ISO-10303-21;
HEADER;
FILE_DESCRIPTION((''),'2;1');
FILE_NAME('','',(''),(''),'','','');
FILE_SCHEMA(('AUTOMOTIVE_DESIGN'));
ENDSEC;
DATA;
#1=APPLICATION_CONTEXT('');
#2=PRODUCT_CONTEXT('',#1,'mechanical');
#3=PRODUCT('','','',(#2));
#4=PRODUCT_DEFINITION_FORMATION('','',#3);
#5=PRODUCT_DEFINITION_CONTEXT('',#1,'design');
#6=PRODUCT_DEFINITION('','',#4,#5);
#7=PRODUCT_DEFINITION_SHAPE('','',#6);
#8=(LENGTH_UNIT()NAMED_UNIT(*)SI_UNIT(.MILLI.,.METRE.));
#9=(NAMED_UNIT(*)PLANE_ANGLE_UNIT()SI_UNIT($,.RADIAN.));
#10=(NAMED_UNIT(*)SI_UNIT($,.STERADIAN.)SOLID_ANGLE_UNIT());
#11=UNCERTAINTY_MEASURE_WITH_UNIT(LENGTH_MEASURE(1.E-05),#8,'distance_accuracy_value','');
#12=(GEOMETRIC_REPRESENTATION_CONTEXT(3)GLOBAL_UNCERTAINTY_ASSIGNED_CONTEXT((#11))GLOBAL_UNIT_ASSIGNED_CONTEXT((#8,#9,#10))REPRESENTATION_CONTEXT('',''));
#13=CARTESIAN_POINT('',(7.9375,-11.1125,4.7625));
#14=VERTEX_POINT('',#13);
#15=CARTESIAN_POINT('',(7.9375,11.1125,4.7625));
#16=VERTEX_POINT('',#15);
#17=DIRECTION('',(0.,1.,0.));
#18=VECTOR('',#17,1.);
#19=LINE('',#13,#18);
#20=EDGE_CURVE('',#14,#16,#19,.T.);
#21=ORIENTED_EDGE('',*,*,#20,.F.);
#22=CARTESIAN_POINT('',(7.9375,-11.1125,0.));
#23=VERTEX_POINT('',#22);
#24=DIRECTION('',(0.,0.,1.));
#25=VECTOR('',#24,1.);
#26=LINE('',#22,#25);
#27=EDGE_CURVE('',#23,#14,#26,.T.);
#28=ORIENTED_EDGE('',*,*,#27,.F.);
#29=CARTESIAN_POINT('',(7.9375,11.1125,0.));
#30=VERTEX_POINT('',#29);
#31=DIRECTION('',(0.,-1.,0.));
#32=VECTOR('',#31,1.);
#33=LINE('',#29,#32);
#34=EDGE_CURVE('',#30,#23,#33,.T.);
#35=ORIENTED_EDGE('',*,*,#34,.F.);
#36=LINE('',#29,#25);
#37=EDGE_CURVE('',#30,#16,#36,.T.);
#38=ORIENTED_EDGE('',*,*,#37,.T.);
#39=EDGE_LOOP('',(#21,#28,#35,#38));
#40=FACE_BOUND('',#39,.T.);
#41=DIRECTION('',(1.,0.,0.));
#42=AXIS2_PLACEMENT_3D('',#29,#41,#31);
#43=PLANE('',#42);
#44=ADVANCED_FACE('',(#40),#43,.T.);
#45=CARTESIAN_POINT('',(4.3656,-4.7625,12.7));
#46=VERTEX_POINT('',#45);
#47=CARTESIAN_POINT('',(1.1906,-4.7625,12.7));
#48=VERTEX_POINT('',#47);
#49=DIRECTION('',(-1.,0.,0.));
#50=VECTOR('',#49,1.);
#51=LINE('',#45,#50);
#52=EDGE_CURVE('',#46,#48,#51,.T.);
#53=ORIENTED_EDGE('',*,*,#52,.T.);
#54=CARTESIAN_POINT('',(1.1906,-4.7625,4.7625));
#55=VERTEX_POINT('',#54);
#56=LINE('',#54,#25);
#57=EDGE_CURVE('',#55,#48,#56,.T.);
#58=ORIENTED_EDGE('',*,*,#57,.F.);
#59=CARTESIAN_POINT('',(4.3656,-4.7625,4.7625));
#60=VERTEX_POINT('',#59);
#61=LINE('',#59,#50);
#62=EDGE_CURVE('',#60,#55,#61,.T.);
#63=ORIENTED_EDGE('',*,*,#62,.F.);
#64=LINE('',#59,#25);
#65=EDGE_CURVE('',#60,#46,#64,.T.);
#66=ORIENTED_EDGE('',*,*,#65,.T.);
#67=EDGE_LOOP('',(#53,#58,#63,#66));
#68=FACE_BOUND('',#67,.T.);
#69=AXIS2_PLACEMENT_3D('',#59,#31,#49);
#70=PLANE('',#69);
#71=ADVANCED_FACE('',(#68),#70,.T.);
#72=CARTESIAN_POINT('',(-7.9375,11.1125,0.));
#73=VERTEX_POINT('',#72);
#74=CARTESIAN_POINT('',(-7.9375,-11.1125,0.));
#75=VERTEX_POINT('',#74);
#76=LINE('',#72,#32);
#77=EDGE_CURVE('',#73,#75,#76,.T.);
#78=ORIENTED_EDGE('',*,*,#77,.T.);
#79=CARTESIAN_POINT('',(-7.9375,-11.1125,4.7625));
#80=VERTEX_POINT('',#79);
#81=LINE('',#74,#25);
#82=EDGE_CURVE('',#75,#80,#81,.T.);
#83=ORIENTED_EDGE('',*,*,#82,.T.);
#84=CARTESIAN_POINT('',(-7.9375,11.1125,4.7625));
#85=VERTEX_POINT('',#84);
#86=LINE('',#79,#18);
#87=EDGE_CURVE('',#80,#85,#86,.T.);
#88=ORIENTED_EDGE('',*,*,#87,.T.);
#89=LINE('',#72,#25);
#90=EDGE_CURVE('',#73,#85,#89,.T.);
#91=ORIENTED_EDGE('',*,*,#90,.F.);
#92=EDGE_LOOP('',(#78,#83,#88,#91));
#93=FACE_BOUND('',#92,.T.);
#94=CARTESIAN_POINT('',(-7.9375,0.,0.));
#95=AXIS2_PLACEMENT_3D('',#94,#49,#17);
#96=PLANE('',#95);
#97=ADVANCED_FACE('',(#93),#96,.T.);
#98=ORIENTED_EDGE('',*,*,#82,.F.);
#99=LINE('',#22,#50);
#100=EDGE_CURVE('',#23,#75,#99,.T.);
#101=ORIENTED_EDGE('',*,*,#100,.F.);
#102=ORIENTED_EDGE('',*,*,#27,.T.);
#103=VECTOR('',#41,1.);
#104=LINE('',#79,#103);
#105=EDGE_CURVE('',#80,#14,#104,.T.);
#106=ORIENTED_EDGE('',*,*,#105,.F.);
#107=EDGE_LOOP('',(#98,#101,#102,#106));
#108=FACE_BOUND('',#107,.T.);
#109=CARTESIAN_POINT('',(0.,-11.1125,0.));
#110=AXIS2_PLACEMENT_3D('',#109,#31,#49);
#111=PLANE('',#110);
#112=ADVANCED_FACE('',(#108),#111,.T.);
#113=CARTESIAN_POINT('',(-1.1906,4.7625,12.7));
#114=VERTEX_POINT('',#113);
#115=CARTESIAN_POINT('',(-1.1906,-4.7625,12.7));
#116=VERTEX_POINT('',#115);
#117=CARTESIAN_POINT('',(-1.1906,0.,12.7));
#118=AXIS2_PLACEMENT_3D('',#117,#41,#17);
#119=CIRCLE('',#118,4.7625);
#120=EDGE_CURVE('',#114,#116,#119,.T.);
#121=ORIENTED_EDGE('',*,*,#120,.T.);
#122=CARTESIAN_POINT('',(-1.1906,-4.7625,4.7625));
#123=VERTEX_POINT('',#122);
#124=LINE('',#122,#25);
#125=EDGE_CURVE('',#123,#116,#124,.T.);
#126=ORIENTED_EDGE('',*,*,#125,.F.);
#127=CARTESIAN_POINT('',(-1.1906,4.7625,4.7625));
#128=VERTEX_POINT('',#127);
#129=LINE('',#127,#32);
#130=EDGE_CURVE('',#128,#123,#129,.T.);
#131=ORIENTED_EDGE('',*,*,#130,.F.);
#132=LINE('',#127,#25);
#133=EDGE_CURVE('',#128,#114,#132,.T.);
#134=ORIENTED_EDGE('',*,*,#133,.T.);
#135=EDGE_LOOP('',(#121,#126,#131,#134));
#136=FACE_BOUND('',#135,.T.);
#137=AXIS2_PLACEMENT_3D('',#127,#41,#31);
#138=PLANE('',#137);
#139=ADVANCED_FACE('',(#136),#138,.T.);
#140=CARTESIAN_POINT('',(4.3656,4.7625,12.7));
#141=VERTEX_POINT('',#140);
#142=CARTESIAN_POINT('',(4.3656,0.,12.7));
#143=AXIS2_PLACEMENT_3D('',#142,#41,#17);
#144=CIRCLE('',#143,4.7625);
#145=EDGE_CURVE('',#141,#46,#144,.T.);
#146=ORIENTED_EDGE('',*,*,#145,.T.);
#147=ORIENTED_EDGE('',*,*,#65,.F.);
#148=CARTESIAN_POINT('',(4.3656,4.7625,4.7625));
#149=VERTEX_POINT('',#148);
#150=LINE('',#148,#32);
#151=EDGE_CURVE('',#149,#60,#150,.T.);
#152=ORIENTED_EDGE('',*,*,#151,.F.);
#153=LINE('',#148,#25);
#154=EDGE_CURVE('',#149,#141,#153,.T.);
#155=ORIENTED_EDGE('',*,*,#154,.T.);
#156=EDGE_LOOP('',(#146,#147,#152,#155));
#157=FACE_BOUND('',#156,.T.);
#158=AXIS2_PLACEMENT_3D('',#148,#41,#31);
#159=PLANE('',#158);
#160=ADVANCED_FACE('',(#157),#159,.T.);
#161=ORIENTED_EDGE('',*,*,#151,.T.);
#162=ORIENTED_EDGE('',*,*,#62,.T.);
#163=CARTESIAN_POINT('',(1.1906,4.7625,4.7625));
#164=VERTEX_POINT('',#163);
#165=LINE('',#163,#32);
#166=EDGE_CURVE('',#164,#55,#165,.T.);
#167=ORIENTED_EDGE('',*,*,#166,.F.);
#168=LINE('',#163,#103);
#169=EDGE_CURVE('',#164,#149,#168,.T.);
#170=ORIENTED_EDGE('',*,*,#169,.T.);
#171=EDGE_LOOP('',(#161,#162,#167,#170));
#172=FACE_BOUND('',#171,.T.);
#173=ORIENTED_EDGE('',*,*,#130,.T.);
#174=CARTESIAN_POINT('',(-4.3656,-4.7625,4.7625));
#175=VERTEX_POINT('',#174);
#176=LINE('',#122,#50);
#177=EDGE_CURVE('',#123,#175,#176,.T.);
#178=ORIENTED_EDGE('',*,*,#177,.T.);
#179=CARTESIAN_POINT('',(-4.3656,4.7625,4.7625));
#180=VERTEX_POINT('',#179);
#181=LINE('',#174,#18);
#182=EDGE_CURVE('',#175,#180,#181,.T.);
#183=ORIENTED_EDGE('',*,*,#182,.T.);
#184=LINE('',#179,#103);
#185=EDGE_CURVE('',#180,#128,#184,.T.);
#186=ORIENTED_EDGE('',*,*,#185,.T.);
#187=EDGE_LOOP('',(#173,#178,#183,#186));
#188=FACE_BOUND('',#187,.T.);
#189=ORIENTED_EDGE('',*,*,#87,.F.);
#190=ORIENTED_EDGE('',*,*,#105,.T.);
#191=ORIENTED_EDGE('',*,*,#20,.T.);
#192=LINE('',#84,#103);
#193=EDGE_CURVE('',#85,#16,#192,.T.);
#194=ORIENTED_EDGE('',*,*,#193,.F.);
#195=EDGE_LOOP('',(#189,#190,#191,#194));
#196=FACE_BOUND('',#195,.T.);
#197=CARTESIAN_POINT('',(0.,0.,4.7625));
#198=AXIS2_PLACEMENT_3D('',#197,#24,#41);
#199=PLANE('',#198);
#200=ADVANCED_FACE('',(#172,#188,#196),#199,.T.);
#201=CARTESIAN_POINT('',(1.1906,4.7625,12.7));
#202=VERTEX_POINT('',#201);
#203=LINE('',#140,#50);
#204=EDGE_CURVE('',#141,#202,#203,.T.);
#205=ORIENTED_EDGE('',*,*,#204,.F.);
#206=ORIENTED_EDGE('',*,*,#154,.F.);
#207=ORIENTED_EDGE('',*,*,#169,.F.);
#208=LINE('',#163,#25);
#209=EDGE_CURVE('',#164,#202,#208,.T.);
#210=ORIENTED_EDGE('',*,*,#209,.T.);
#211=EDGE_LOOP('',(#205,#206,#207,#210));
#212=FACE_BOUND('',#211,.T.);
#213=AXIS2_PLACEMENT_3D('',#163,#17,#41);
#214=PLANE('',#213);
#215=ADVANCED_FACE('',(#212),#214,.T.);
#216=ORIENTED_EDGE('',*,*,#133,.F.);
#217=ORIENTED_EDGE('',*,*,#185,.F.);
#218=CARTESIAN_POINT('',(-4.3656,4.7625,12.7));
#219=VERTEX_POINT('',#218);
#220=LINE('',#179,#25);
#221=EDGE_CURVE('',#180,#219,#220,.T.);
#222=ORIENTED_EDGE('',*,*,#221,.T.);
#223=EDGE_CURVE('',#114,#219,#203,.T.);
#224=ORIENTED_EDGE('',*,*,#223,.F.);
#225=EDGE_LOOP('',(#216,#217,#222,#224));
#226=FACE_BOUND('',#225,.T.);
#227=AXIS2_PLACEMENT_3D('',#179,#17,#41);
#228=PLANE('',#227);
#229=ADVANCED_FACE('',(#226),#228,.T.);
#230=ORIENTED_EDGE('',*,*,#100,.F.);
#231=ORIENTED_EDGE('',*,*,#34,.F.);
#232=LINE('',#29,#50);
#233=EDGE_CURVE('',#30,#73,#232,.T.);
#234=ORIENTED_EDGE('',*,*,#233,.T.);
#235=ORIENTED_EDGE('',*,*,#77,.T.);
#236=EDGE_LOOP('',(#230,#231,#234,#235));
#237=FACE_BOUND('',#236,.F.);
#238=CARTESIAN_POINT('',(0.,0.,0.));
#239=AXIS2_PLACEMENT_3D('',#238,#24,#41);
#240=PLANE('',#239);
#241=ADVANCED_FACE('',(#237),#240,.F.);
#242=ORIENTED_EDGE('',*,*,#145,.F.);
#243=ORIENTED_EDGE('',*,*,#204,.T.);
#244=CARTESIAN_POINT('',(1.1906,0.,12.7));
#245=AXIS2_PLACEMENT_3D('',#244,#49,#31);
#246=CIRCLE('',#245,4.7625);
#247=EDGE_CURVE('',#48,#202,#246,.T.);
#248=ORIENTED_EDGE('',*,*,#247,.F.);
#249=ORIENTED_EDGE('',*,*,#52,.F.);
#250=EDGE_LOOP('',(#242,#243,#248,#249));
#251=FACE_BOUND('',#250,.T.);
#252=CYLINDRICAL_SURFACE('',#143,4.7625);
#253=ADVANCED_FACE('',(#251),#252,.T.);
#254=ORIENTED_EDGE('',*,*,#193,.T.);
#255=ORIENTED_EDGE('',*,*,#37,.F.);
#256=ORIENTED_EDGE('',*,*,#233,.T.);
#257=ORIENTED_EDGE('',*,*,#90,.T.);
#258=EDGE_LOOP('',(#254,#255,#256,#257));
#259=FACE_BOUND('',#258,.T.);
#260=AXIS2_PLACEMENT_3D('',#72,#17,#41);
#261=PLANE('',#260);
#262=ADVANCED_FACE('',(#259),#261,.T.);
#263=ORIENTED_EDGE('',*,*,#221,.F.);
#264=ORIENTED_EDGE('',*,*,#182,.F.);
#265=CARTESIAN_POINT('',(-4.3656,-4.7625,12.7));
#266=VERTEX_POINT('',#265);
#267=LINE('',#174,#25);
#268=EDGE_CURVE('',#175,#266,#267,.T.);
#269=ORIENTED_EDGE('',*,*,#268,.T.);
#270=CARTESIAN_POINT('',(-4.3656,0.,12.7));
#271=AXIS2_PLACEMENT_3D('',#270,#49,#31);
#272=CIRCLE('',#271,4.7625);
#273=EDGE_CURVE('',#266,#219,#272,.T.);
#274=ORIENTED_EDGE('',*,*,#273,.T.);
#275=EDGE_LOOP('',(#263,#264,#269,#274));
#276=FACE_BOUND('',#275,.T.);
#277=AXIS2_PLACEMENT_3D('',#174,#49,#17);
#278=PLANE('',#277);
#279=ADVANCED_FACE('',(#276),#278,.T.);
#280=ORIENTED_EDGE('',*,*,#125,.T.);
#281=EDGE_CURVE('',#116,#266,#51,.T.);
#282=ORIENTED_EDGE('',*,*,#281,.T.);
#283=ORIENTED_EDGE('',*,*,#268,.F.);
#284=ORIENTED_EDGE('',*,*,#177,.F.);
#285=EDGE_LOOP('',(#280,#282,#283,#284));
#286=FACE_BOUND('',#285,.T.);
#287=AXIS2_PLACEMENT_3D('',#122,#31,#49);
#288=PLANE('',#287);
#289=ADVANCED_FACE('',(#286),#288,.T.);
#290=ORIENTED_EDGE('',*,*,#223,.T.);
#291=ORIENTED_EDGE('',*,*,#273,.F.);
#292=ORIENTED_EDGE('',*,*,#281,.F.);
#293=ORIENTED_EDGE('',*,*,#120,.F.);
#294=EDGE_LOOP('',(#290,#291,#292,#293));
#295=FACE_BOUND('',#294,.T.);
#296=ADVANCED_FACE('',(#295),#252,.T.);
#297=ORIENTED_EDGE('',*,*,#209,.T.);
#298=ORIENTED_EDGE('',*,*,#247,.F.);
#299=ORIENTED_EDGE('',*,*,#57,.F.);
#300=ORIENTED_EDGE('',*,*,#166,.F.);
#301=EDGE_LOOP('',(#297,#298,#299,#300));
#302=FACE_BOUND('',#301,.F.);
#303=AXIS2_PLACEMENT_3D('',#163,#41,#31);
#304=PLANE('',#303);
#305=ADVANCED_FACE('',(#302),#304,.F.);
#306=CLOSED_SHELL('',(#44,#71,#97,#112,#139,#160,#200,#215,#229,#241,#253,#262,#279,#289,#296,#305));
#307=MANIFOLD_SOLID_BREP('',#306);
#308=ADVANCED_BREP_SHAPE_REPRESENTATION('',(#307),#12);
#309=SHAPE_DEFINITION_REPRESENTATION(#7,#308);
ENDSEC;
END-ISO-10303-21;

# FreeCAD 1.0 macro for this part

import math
import FreeCAD as App
import Part
import Sketcher

V = App.Vector
Q = App.Units.Quantity

doc = App.newDocument("Part")
body = doc.addObject("PartDesign::Body", "Body")

# Sketch on XY plane
sketch1 = body.newObject("Sketcher::SketchObject", "Sketch")
sketch1.AttachmentSupport = (doc.getObject("XY_Plane"), [""])
sketch1.MapMode = "FlatFace"
sketch1.addGeometry([
    Part.LineSegment(V(-8, 11, 0), V(-8, -11, 0)),
    Part.LineSegment(V(-8, -11, 0), V(8, -11, 0)),
    Part.LineSegment(V(8, -11, 0), V(8, 11, 0)),
    Part.LineSegment(V(8, 11, 0), V(-8, 11, 0)),
], False)
sketch1.addConstraint([
    Sketcher.Constraint("Coincident", 0, 2, 1, 1),
    Sketcher.Constraint("Coincident", 1, 2, 2, 1),
    Sketcher.Constraint("Coincident", 2, 2, 3, 1),
    Sketcher.Constraint("Coincident", 3, 2, 0, 1),
    Sketcher.Constraint("Vertical", 0),
    Sketcher.Constraint("Horizontal", 1),
    Sketcher.Constraint("Vertical", 2),
    Sketcher.Constraint("Horizontal", 3),
    Sketcher.Constraint("Symmetric", 0, 2, 2, 2, -1, 1),
    Sketcher.Constraint("DistanceX", 1, 1, 1, 2, Q("0.625 in")),
    Sketcher.Constraint("DistanceY", 0, 2, 0, 1, Q("0.875 in")),
])
pad1 = body.newObject("PartDesign::Pad", "Pad")
pad1.Profile = sketch1
pad1.Length = Q("0.1875 in")

# Sketch on XY plane
sketch2 = body.newObject("Sketcher::SketchObject", "Sketch001")
sketch2.AttachmentSupport = (doc.getObject("XY_Plane"), [""])
sketch2.MapMode = "FlatFace"
sketch2.AttachmentOffset = App.Placement(V(0, 0, 0.1875 * 25.4), App.Rotation())
sketch2.addGeometry([
    Part.LineSegment(V(4.4, -4.8, 0), V(4.4, 4.8, 0)),  # 0
    Part.LineSegment(V(4.4, 4.8, 0), V(1.2, 4.8, 0)),  # 1
    Part.LineSegment(V(1.2, 4.8, 0), V(1.2, -4.8, 0)),  # 2
    Part.LineSegment(V(1.2, -4.8, 0), V(4.4, -4.8, 0)),  # 3
    Part.LineSegment(V(-4.4, 4.8, 0), V(-4.4, -4.8, 0)),  # 4
    Part.LineSegment(V(-4.4, -4.8, 0), V(-1.2, -4.8, 0)),  # 5
    Part.LineSegment(V(-1.2, -4.8, 0), V(-1.2, 4.8, 0)),  # 6
    Part.LineSegment(V(-1.2, 4.8, 0), V(-4.4, 4.8, 0)),  # 7
], False)
sketch2.addConstraint([
    Sketcher.Constraint("Coincident", 0, 2, 1, 1),
    Sketcher.Constraint("Coincident", 1, 2, 2, 1),
    Sketcher.Constraint("Coincident", 2, 2, 3, 1),
    Sketcher.Constraint("Coincident", 3, 2, 0, 1),
    Sketcher.Constraint("Coincident", 4, 2, 5, 1),
    Sketcher.Constraint("Coincident", 5, 2, 6, 1),
    Sketcher.Constraint("Coincident", 6, 2, 7, 1),
    Sketcher.Constraint("Coincident", 7, 2, 4, 1),
    Sketcher.Constraint("Vertical", 0),
    Sketcher.Constraint("Horizontal", 1),
    Sketcher.Constraint("Vertical", 2),
    Sketcher.Constraint("Horizontal", 3),
    Sketcher.Constraint("Vertical", 4),
    Sketcher.Constraint("Horizontal", 5),
    Sketcher.Constraint("Vertical", 6),
    Sketcher.Constraint("Horizontal", 7),
    Sketcher.Constraint("Symmetric", 0, 2, 4, 2, -1, 1),
    Sketcher.Constraint("Symmetric", 2, 2, 6, 2, -1, 1),
    Sketcher.Constraint("Horizontal", 3, 2, 4, 2),
    Sketcher.Constraint("DistanceX", 1, 2, 1, 1, Q("0.125 in")),
    Sketcher.Constraint("DistanceY", 0, 1, 0, 2, Q("0.375 in")),
    Sketcher.Constraint("DistanceX", 5, 2, 2, 2, Q("0.093748 in")),
])
pad2 = body.newObject("PartDesign::Pad", "Pad001")
pad2.Profile = sketch2
pad2.Length = Q("0.5 in")

# Sketch on YZ plane
sketch3 = body.newObject("Sketcher::SketchObject", "Sketch002")
sketch3.AttachmentSupport = (doc.getObject("YZ_Plane"), [""])
sketch3.MapMode = "FlatFace"
sketch3.AttachmentOffset = App.Placement(V(0, 0, 0.171874 * 25.4), App.Rotation())
sketch3.addGeometry([
    Part.LineSegment(V(4.8, 12.7, 0), V(4.8, 17.5, 0)),  # 0
    Part.LineSegment(V(4.8, 17.5, 0), V(0, 17.5, 0)),  # 1
    Part.ArcOfCircle(Part.Circle(V(0, 12.7, 0), V(0, 0, 1), 4.8), math.radians(0), math.radians(90)),  # 2
    Part.ArcOfCircle(Part.Circle(V(0, 12.7, 0), V(0, 0, 1), 4.8), math.radians(90), math.radians(180)),  # 3
    Part.LineSegment(V(0, 17.5, 0), V(-4.8, 17.5, 0)),  # 4
    Part.LineSegment(V(-4.8, 17.5, 0), V(-4.8, 12.7, 0)),  # 5
], False)
sketch3.addConstraint([
    Sketcher.Constraint("Coincident", 0, 2, 1, 1),
    Sketcher.Constraint("Tangent", 1, 2, 2, 2),
    Sketcher.Constraint("Tangent", 2, 1, 0, 1),
    Sketcher.Constraint("Tangent", 3, 1, 4, 1),
    Sketcher.Constraint("Coincident", 4, 2, 5, 1),
    Sketcher.Constraint("Tangent", 5, 2, 3, 2),
    Sketcher.Constraint("Vertical", 0),
    Sketcher.Constraint("Horizontal", 1),
    Sketcher.Constraint("Horizontal", 4),
    Sketcher.Constraint("Vertical", 5),
    Sketcher.Constraint("Coincident", 3, 3, 2, 3),
    Sketcher.Constraint("Equal", 2, 3),
    Sketcher.Constraint("PointOnObject", 2, 3, -2),
    Sketcher.Constraint("Radius", 2, Q("0.1875 in")),
    Sketcher.Constraint("DistanceY", -1, 1, 2, 3, Q("0.5 in")),
])
pocket1 = body.newObject("PartDesign::Pocket", "Pocket")
pocket1.Profile = sketch3
pocket1.Type = "ThroughAll"

doc.recompute()
